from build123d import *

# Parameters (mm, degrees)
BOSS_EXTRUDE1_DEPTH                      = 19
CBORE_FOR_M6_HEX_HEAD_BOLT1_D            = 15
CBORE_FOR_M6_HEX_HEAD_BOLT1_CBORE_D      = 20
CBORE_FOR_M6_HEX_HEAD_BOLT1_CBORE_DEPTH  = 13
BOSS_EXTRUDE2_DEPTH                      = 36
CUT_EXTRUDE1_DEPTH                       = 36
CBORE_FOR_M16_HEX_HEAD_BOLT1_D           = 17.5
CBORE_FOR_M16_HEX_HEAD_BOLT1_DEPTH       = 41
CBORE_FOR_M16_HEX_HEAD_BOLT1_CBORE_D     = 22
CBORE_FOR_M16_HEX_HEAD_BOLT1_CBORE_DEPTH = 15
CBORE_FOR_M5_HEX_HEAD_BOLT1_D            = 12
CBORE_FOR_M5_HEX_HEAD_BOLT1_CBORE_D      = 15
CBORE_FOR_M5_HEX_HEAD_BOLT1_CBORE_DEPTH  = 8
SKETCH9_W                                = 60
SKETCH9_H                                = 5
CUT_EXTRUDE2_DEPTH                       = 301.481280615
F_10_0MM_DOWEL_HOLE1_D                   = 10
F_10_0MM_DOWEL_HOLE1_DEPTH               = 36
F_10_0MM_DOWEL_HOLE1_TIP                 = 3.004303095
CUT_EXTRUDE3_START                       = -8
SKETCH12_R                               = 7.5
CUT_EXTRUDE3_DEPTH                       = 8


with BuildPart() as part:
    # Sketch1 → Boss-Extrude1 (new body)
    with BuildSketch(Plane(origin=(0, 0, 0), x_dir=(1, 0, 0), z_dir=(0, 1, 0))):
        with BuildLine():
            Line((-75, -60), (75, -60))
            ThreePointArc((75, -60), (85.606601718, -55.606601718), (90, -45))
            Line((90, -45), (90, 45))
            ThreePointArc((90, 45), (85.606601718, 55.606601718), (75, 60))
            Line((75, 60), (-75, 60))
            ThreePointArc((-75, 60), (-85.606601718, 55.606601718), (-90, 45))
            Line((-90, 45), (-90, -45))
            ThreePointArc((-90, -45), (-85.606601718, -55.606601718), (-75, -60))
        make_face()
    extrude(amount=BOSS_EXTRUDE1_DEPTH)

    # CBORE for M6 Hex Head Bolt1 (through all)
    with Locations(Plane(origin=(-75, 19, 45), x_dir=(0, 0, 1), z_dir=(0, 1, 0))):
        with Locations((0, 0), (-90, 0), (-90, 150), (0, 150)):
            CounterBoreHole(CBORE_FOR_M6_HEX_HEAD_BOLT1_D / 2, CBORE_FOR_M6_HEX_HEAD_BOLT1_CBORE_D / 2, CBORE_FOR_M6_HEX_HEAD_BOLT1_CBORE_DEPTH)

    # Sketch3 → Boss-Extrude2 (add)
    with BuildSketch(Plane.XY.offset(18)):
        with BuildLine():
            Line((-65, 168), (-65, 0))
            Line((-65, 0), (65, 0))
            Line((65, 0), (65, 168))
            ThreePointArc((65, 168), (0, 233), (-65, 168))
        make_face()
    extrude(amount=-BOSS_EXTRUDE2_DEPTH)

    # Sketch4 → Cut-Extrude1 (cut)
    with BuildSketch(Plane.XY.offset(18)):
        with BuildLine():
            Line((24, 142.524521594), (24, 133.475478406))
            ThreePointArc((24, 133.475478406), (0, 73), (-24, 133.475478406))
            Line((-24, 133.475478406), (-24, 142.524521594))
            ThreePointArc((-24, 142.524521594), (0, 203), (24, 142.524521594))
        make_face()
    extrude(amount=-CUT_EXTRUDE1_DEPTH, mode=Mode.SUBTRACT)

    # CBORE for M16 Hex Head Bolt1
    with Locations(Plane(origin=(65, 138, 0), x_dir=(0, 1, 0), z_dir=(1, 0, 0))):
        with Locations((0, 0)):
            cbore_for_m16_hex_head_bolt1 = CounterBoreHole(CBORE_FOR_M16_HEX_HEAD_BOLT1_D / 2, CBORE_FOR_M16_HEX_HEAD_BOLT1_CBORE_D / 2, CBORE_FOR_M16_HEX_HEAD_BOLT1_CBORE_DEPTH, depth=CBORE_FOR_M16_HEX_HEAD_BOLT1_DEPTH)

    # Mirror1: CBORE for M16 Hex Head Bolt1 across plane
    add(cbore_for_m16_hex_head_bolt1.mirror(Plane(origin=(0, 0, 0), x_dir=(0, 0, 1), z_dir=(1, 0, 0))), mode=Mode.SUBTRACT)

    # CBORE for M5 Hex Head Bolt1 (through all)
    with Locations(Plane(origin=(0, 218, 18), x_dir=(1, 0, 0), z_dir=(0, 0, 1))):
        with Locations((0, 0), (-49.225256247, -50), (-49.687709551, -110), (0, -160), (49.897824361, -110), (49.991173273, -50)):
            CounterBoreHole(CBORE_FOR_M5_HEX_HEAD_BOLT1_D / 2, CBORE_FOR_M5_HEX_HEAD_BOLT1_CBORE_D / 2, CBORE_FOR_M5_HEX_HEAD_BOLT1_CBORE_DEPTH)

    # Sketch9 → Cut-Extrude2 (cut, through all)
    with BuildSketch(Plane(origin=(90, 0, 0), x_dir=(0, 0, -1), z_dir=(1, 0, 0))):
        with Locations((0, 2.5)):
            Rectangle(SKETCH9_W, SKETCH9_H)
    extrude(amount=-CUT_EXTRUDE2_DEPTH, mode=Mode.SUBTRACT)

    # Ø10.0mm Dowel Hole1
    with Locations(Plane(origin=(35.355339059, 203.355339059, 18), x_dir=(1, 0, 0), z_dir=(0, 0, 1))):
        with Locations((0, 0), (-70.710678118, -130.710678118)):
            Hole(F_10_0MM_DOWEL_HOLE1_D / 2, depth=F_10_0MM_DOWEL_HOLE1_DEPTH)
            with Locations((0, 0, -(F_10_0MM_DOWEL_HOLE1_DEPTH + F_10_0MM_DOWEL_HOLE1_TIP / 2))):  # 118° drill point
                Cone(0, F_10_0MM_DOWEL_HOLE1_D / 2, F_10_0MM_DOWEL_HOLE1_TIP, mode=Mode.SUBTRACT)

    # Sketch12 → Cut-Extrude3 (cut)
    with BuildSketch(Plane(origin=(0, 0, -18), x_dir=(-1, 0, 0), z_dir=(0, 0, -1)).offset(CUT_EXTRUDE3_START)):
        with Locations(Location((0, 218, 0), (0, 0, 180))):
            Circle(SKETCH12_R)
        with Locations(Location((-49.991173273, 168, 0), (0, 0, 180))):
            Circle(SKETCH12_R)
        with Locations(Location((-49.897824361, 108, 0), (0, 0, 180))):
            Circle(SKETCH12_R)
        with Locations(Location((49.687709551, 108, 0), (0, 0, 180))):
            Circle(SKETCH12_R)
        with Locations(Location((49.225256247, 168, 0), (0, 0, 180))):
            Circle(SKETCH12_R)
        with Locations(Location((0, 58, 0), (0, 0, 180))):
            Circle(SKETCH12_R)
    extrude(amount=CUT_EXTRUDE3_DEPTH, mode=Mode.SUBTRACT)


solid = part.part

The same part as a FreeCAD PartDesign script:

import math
import FreeCAD as App
import Part
import Sketcher
Q = App.Units.Quantity

doc = App.newDocument("Part")
body = doc.addObject("PartDesign::Body", "Body")

sketch1 = body.newObject("Sketcher::SketchObject", "Sketch")
sketch1.AttachmentSupport = (doc.getObject("XZ_Plane"), [""])
sketch1.MapMode = "FlatFace"
sketch1.addGeometry(Part.LineSegment(App.Vector(-75, 60, 0), App.Vector(75, 60, 0)), False)
sketch1.addGeometry(Part.ArcOfCircle(Part.Circle(App.Vector(75, 45, 0), App.Vector(0, 0, 1), 15), math.radians(0), math.radians(90)), False)
sketch1.addGeometry(Part.LineSegment(App.Vector(90, 45, 0), App.Vector(90, -45, 0)), False)
sketch1.addGeometry(Part.ArcOfCircle(Part.Circle(App.Vector(75, -45, 0), App.Vector(0, 0, 1), 15), math.radians(-90), math.radians(0)), False)
sketch1.addGeometry(Part.LineSegment(App.Vector(75, -60, 0), App.Vector(-75, -60, 0)), False)
sketch1.addGeometry(Part.ArcOfCircle(Part.Circle(App.Vector(-75, -45, 0), App.Vector(0, 0, 1), 15), math.radians(180), math.radians(270)), False)
sketch1.addGeometry(Part.LineSegment(App.Vector(-90, -45, 0), App.Vector(-90, 45, 0)), False)
sketch1.addGeometry(Part.ArcOfCircle(Part.Circle(App.Vector(-75, 45, 0), App.Vector(0, 0, 1), 15), math.radians(90), math.radians(180)), False)
sketch1.addConstraint(Sketcher.Constraint("Tangent", 0, 2, 1, 2))
sketch1.addConstraint(Sketcher.Constraint("Tangent", 1, 1, 2, 1))
sketch1.addConstraint(Sketcher.Constraint("Tangent", 2, 2, 3, 2))
sketch1.addConstraint(Sketcher.Constraint("Tangent", 3, 1, 4, 1))
sketch1.addConstraint(Sketcher.Constraint("Tangent", 4, 2, 5, 2))
sketch1.addConstraint(Sketcher.Constraint("Tangent", 5, 1, 6, 1))
sketch1.addConstraint(Sketcher.Constraint("Tangent", 6, 2, 7, 2))
sketch1.addConstraint(Sketcher.Constraint("Tangent", 7, 1, 0, 1))
sketch1.addConstraint(Sketcher.Constraint("Horizontal", 0))
sketch1.addConstraint(Sketcher.Constraint("Vertical", 2))
sketch1.addConstraint(Sketcher.Constraint("Horizontal", 4))
sketch1.addConstraint(Sketcher.Constraint("Vertical", 6))
sketch1.addConstraint(Sketcher.Constraint("Equal", 1, 3))
sketch1.addConstraint(Sketcher.Constraint("Equal", 3, 5))
sketch1.addConstraint(Sketcher.Constraint("Equal", 5, 7))
sketch1.addConstraint(Sketcher.Constraint("Symmetric", 1, 3, 5, 3, -1, 1))
sketch1.addConstraint(Sketcher.Constraint("Radius", 1, Q("15 mm")))
sketch1.addConstraint(Sketcher.Constraint("DistanceX", 0, 1, 0, 2, Q("150 mm")))
sketch1.addConstraint(Sketcher.Constraint("DistanceY", 2, 2, 2, 1, Q("90 mm")))
pad1 = body.newObject("PartDesign::Pad", "Pad")
pad1.Profile = sketch1
pad1.Length = 19
pad1.Reversed = True

sketch2 = body.newObject("Sketcher::SketchObject", "Sketch001")
sketch2.AttachmentSupport = (doc.getObject("XZ_Plane"), [""])
sketch2.MapMode = "FlatFace"
sketch2.AttachmentOffset = App.Placement(App.Vector(0, 0, -19), App.Rotation())
sketch2.addGeometry(Part.Circle(App.Vector(-75, 45, 0), App.Vector(0, 0, 1), 8), False)
sketch2.addGeometry(Part.Circle(App.Vector(-75, -45, 0), App.Vector(0, 0, 1), 8), False)
sketch2.addGeometry(Part.Circle(App.Vector(75, -45, 0), App.Vector(0, 0, 1), 8), False)
sketch2.addGeometry(Part.Circle(App.Vector(75, 45, 0), App.Vector(0, 0, 1), 8), False)
sketch2.addConstraint(Sketcher.Constraint("Equal", 0, 1))
sketch2.addConstraint(Sketcher.Constraint("Equal", 1, 2))
sketch2.addConstraint(Sketcher.Constraint("Equal", 2, 3))
sketch2.addConstraint(Sketcher.Constraint("Symmetric", 0, 3, 2, 3, -1, 1))
sketch2.addConstraint(Sketcher.Constraint("Symmetric", 1, 3, 3, 3, -1, 1))
sketch2.addConstraint(Sketcher.Constraint("Symmetric", 1, 3, 2, 3, -2))
sketch2.addConstraint(Sketcher.Constraint("Diameter", 0, Q("15 mm")))
sketch2.addConstraint(Sketcher.Constraint("DistanceX", 0, 3, -1, 1, Q("75 mm")))
sketch2.addConstraint(Sketcher.Constraint("DistanceY", -1, 1, 0, 3, Q("45 mm")))
doc.recompute()
hole = body.newObject("PartDesign::Hole", "Hole")
hole.Profile = sketch2
hole.ThreadType = "None"
hole.Diameter = 15
hole.DepthType = "ThroughAll"
hole.HoleCutType = "Counterbore"
hole.HoleCutDiameter = 20
hole.HoleCutDepth = 13
hole.Reversed = True

sketch3 = body.newObject("Sketcher::SketchObject", "Sketch002")
sketch3.AttachmentSupport = (doc.getObject("XY_Plane"), [""])
sketch3.MapMode = "FlatFace"
sketch3.AttachmentOffset = App.Placement(App.Vector(0, 0, 18), App.Rotation())
sketch3.addGeometry(Part.LineSegment(App.Vector(-65, 168, 0), App.Vector(-65, 0, 0)), False)
sketch3.addGeometry(Part.LineSegment(App.Vector(-65, 0, 0), App.Vector(65, 0, 0)), False)
sketch3.addGeometry(Part.LineSegment(App.Vector(65, 0, 0), App.Vector(65, 168, 0)), False)
sketch3.addGeometry(Part.ArcOfCircle(Part.Circle(App.Vector(0, 168, 0), App.Vector(0, 0, 1), 65), math.radians(0), math.radians(180)), False)
sketch3.addConstraint(Sketcher.Constraint("Coincident", 0, 2, 1, 1))
sketch3.addConstraint(Sketcher.Constraint("Coincident", 1, 2, 2, 1))
sketch3.addConstraint(Sketcher.Constraint("Tangent", 2, 2, 3, 1))
sketch3.addConstraint(Sketcher.Constraint("Tangent", 3, 2, 0, 1))
sketch3.addConstraint(Sketcher.Constraint("Vertical", 0))
sketch3.addConstraint(Sketcher.Constraint("Horizontal", 1))
sketch3.addConstraint(Sketcher.Constraint("Vertical", 2))
sketch3.addConstraint(Sketcher.Constraint("Symmetric", 0, 2, 1, 2, -1, 1))
sketch3.addConstraint(Sketcher.Constraint("Radius", 3, Q("65 mm")))
sketch3.addConstraint(Sketcher.Constraint("DistanceY", 0, 2, 0, 1, Q("168 mm")))
pad2 = body.newObject("PartDesign::Pad", "Pad001")
pad2.Profile = sketch3
pad2.Length = 36
pad2.Reversed = True

sketch4 = body.newObject("Sketcher::SketchObject", "Sketch003")
sketch4.AttachmentSupport = (doc.getObject("XY_Plane"), [""])
sketch4.MapMode = "FlatFace"
sketch4.AttachmentOffset = App.Placement(App.Vector(0, 0, 18), App.Rotation())
sketch4.addGeometry(Part.LineSegment(App.Vector(24, 133, 0), App.Vector(24, 143, 0)), False)
sketch4.addGeometry(Part.ArcOfCircle(Part.Circle(App.Vector(0, 168, 0), App.Vector(0, 0, 1), 35), math.radians(-47), math.radians(227)), False)
sketch4.addGeometry(Part.LineSegment(App.Vector(-24, 143, 0), App.Vector(-24, 133, 0)), False)
sketch4.addGeometry(Part.ArcOfCircle(Part.Circle(App.Vector(0, 108, 0), App.Vector(0, 0, 1), 35), math.radians(133), math.radians(407)), False)
sketch4.addConstraint(Sketcher.Constraint("Coincident", 0, 2, 1, 1))
sketch4.addConstraint(Sketcher.Constraint("Coincident", 1, 2, 2, 1))
sketch4.addConstraint(Sketcher.Constraint("Coincident", 2, 2, 3, 1))
sketch4.addConstraint(Sketcher.Constraint("Coincident", 3, 2, 0, 1))
sketch4.addConstraint(Sketcher.Constraint("Vertical", 0))
sketch4.addConstraint(Sketcher.Constraint("Vertical", 2))
sketch4.addConstraint(Sketcher.Constraint("Equal", 1, 3))
sketch4.addConstraint(Sketcher.Constraint("Symmetric", 0, 2, 1, 2, -2))
sketch4.addConstraint(Sketcher.Constraint("PointOnObject", 3, 3, -2))
sketch4.addConstraint(Sketcher.Constraint("Radius", 1, Q("35 mm")))
sketch4.addConstraint(Sketcher.Constraint("DistanceY", -1, 1, 1, 3, Q("168 mm")))
sketch4.addConstraint(Sketcher.Constraint("DistanceY", -1, 1, 3, 3, Q("108 mm")))
sketch4.addConstraint(Sketcher.Constraint("DistanceX", -1, 1, 0, 2, Q("24 mm")))
pocket1 = body.newObject("PartDesign::Pocket", "Pocket")
pocket1.Profile = sketch4
pocket1.Length = 36

sketch5 = body.newObject("Sketcher::SketchObject", "Sketch004")
sketch5.AttachmentSupport = (doc.getObject("YZ_Plane"), [""])
sketch5.MapMode = "FlatFace"
sketch5.AttachmentOffset = App.Placement(App.Vector(0, 0, 65), App.Rotation())
sketch5.addGeometry(Part.Circle(App.Vector(138, 0, 0), App.Vector(0, 0, 1), 9), False)
sketch5.addConstraint(Sketcher.Constraint("PointOnObject", 0, 3, -1))
sketch5.addConstraint(Sketcher.Constraint("Diameter", 0, Q("17.5 mm")))
sketch5.addConstraint(Sketcher.Constraint("DistanceX", -1, 1, 0, 3, Q("138 mm")))
doc.recompute()
hole2 = body.newObject("PartDesign::Hole", "Hole001")
hole2.Profile = sketch5
hole2.ThreadType = "None"
hole2.Diameter = 17.5
hole2.DepthType = "Dimension"
hole2.Depth = 41
hole2.DrillPoint = "Flat"
hole2.HoleCutType = "Counterbore"
hole2.HoleCutDiameter = 22
hole2.HoleCutDepth = 15
doc.recompute()

mirrored = body.newObject("PartDesign::Mirrored", "Mirrored")
mirrored.Originals = [hole2]
mirrored.MirrorPlane = (doc.getObject("YZ_Plane"), [""])
body.Tip = mirrored

sketch6 = body.newObject("Sketcher::SketchObject", "Sketch005")
sketch6.AttachmentSupport = (doc.getObject("XY_Plane"), [""])
sketch6.MapMode = "FlatFace"
sketch6.AttachmentOffset = App.Placement(App.Vector(0, 0, 18), App.Rotation())
sketch6.addGeometry(Part.Circle(App.Vector(0, 218, 0), App.Vector(0, 0, 1), 6), False)
sketch6.addGeometry(Part.Circle(App.Vector(-49, 168, 0), App.Vector(0, 0, 1), 6), False)
sketch6.addGeometry(Part.Circle(App.Vector(-50, 108, 0), App.Vector(0, 0, 1), 6), False)
sketch6.addGeometry(Part.Circle(App.Vector(0, 58, 0), App.Vector(0, 0, 1), 6), False)
sketch6.addGeometry(Part.Circle(App.Vector(50, 108, 0), App.Vector(0, 0, 1), 6), False)
sketch6.addGeometry(Part.Circle(App.Vector(50, 168, 0), App.Vector(0, 0, 1), 6), False)
sketch6.addConstraint(Sketcher.Constraint("Equal", 0, 1))
sketch6.addConstraint(Sketcher.Constraint("Equal", 1, 2))
sketch6.addConstraint(Sketcher.Constraint("Equal", 2, 3))
sketch6.addConstraint(Sketcher.Constraint("Equal", 3, 4))
sketch6.addConstraint(Sketcher.Constraint("Equal", 4, 5))
sketch6.addConstraint(Sketcher.Constraint("PointOnObject", 0, 3, -2))
sketch6.addConstraint(Sketcher.Constraint("PointOnObject", 3, 3, -2))
sketch6.addConstraint(Sketcher.Constraint("Horizontal", 2, 3, 4, 3))
sketch6.addConstraint(Sketcher.Constraint("Horizontal", 1, 3, 5, 3))
sketch6.addConstraint(Sketcher.Constraint("Diameter", 0, Q("12 mm")))
sketch6.addConstraint(Sketcher.Constraint("DistanceY", -1, 1, 0, 3, Q("218 mm")))
sketch6.addConstraint(Sketcher.Constraint("DistanceY", -1, 1, 1, 3, Q("168 mm")))
sketch6.addConstraint(Sketcher.Constraint("DistanceY", -1, 1, 2, 3, Q("108 mm")))
sketch6.addConstraint(Sketcher.Constraint("DistanceY", -1, 1, 3, 3, Q("58 mm")))
sketch6.addConstraint(Sketcher.Constraint("DistanceX", 2, 3, -1, 1, Q("49.68771 mm")))
sketch6.addConstraint(Sketcher.Constraint("DistanceX", 1, 3, 4, 3, Q("99.123081 mm")))
sketch6.addConstraint(Sketcher.Constraint("DistanceX", 4, 3, 5, 3, Q("0.093349 mm")))
sketch6.addConstraint(Sketcher.Constraint("DistanceX", 1, 3, -1, 1, Q("49.225256 mm")))
doc.recompute()
hole3 = body.newObject("PartDesign::Hole", "Hole002")
hole3.Profile = sketch6
hole3.ThreadType = "None"
hole3.Diameter = 12
hole3.DepthType = "ThroughAll"
hole3.HoleCutType = "Counterbore"
hole3.HoleCutDiameter = 15
hole3.HoleCutDepth = 8

sketch7 = body.newObject("Sketcher::SketchObject", "Sketch006")
sketch7.AttachmentSupport = (doc.getObject("YZ_Plane"), [""])
sketch7.MapMode = "FlatFace"
sketch7.AttachmentOffset = App.Placement(App.Vector(0, 0, 90), App.Rotation())
sketch7.addGeometry(Part.LineSegment(App.Vector(5, 30, 0), App.Vector(0, 30, 0)), False)
sketch7.addGeometry(Part.LineSegment(App.Vector(0, 30, 0), App.Vector(0, -30, 0)), False)
sketch7.addGeometry(Part.LineSegment(App.Vector(0, -30, 0), App.Vector(5, -30, 0)), False)
sketch7.addGeometry(Part.LineSegment(App.Vector(5, -30, 0), App.Vector(5, 30, 0)), False)
sketch7.addConstraint(Sketcher.Constraint("Coincident", 0, 2, 1, 1))
sketch7.addConstraint(Sketcher.Constraint("Coincident", 1, 2, 2, 1))
sketch7.addConstraint(Sketcher.Constraint("Coincident", 2, 2, 3, 1))
sketch7.addConstraint(Sketcher.Constraint("Coincident", 3, 2, 0, 1))
sketch7.addConstraint(Sketcher.Constraint("Horizontal", 0))
sketch7.addConstraint(Sketcher.Constraint("Vertical", 1))
sketch7.addConstraint(Sketcher.Constraint("Horizontal", 2))
sketch7.addConstraint(Sketcher.Constraint("Vertical", 3))
sketch7.addConstraint(Sketcher.Constraint("Symmetric", 0, 2, 1, 2, -1, 1))
sketch7.addConstraint(Sketcher.Constraint("DistanceX", 0, 2, 0, 1, Q("5 mm")))
sketch7.addConstraint(Sketcher.Constraint("DistanceY", 1, 2, 1, 1, Q("60 mm")))
pocket2 = body.newObject("PartDesign::Pocket", "Pocket001")
pocket2.Profile = sketch7
pocket2.Type = "ThroughAll"

sketch8 = body.newObject("Sketcher::SketchObject", "Sketch007")
sketch8.AttachmentSupport = (doc.getObject("XY_Plane"), [""])
sketch8.MapMode = "FlatFace"
sketch8.AttachmentOffset = App.Placement(App.Vector(0, 0, 18), App.Rotation())
sketch8.addGeometry(Part.Circle(App.Vector(35, 203, 0), App.Vector(0, 0, 1), 5), False)
sketch8.addGeometry(Part.Circle(App.Vector(-35, 73, 0), App.Vector(0, 0, 1), 5), False)
sketch8.addConstraint(Sketcher.Constraint("Equal", 0, 1))
sketch8.addConstraint(Sketcher.Constraint("Diameter", 0, Q("10 mm")))
sketch8.addConstraint(Sketcher.Constraint("DistanceX", -1, 1, 0, 3, Q("35.355339 mm")))
sketch8.addConstraint(Sketcher.Constraint("DistanceY", -1, 1, 0, 3, Q("203.355339 mm")))
sketch8.addConstraint(Sketcher.Constraint("DistanceX", 1, 3, -1, 1, Q("35.355339 mm")))
sketch8.addConstraint(Sketcher.Constraint("DistanceY", -1, 1, 1, 3, Q("72.644661 mm")))
doc.recompute()
hole4 = body.newObject("PartDesign::Hole", "Hole003")
hole4.Profile = sketch8
hole4.ThreadType = "None"
hole4.Diameter = 10
hole4.DepthType = "Dimension"
hole4.Depth = 36
hole4.DrillPoint = "Angled"
hole4.DrillPointAngle = 118

sketch9 = body.newObject("Sketcher::SketchObject", "Sketch008")
sketch9.AttachmentSupport = (doc.getObject("XY_Plane"), [""])
sketch9.MapMode = "FlatFace"
sketch9.AttachmentOffset = App.Placement(App.Vector(0, 0, -10), App.Rotation())
sketch9.addGeometry(Part.Circle(App.Vector(0, 218, 0), App.Vector(0, 0, 1), 8), False)
sketch9.addGeometry(Part.Circle(App.Vector(50, 168, 0), App.Vector(0, 0, 1), 8), False)
sketch9.addGeometry(Part.Circle(App.Vector(50, 108, 0), App.Vector(0, 0, 1), 8), False)
sketch9.addGeometry(Part.Circle(App.Vector(-50, 108, 0), App.Vector(0, 0, 1), 8), False)
sketch9.addGeometry(Part.Circle(App.Vector(-49, 168, 0), App.Vector(0, 0, 1), 8), False)
sketch9.addGeometry(Part.Circle(App.Vector(0, 58, 0), App.Vector(0, 0, 1), 8), False)
sketch9.addConstraint(Sketcher.Constraint("Equal", 0, 1))
sketch9.addConstraint(Sketcher.Constraint("Equal", 1, 2))
sketch9.addConstraint(Sketcher.Constraint("Equal", 2, 3))
sketch9.addConstraint(Sketcher.Constraint("Equal", 3, 4))
sketch9.addConstraint(Sketcher.Constraint("Equal", 4, 5))
sketch9.addConstraint(Sketcher.Constraint("PointOnObject", 0, 3, -2))
sketch9.addConstraint(Sketcher.Constraint("PointOnObject", 5, 3, -2))
sketch9.addConstraint(Sketcher.Constraint("Horizontal", 2, 3, 3, 3))
sketch9.addConstraint(Sketcher.Constraint("Horizontal", 1, 3, 4, 3))
sketch9.addConstraint(Sketcher.Constraint("Diameter", 0, Q("15 mm")))
sketch9.addConstraint(Sketcher.Constraint("DistanceY", -1, 1, 0, 3, Q("218 mm")))
sketch9.addConstraint(Sketcher.Constraint("DistanceY", -1, 1, 1, 3, Q("168 mm")))
sketch9.addConstraint(Sketcher.Constraint("DistanceY", -1, 1, 2, 3, Q("108 mm")))
sketch9.addConstraint(Sketcher.Constraint("DistanceY", -1, 1, 5, 3, Q("58 mm")))
sketch9.addConstraint(Sketcher.Constraint("DistanceX", 3, 3, -1, 1, Q("49.68771 mm")))
sketch9.addConstraint(Sketcher.Constraint("DistanceX", 2, 3, 1, 3, Q("0.093349 mm")))
sketch9.addConstraint(Sketcher.Constraint("DistanceX", 4, 3, 1, 3, Q("99.21643 mm")))
sketch9.addConstraint(Sketcher.Constraint("DistanceX", -1, 1, 1, 3, Q("49.991173 mm")))
pocket3 = body.newObject("PartDesign::Pocket", "Pocket002")
pocket3.Profile = sketch9
pocket3.Length = 8

doc.recompute()
